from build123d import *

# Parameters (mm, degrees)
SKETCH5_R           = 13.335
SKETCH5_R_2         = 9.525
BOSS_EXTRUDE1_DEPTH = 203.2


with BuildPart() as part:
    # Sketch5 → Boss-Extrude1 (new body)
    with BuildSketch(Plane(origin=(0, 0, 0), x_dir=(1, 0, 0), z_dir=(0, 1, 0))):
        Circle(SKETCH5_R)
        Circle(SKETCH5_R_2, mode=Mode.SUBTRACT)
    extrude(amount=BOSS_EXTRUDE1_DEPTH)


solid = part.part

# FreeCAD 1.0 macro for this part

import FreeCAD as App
import Part
import Sketcher

V = App.Vector
Q = App.Units.Quantity

doc = App.newDocument("Part")
body = doc.addObject("PartDesign::Body", "Body")

sketch1 = body.newObject("Sketcher::SketchObject", "Sketch")
sketch1.AttachmentSupport = (doc.getObject("XZ_Plane"), [""])
sketch1.MapMode = "FlatFace"
sketch1.addGeometry(Part.Circle(V(0, 0, 0), V(0, 0, 1), 13.335), False)
sketch1.addGeometry(Part.Circle(V(0, 0, 0), V(0, 0, 1), 9.525), False)
sketch1.addConstraint(Sketcher.Constraint("Coincident", 0, 3, -1, 1))
sketch1.addConstraint(Sketcher.Constraint("Coincident", 1, 3, -1, 1))
sketch1.addConstraint(Sketcher.Constraint("Diameter", 0, Q("1.05 in")))
sketch1.addConstraint(Sketcher.Constraint("Diameter", 1, Q("0.75 in")))
pad1 = body.newObject("PartDesign::Pad", "Pad")
pad1.Profile = sketch1
pad1.Length = Q("8 in")
pad1.Reversed = True

doc.recompute()
